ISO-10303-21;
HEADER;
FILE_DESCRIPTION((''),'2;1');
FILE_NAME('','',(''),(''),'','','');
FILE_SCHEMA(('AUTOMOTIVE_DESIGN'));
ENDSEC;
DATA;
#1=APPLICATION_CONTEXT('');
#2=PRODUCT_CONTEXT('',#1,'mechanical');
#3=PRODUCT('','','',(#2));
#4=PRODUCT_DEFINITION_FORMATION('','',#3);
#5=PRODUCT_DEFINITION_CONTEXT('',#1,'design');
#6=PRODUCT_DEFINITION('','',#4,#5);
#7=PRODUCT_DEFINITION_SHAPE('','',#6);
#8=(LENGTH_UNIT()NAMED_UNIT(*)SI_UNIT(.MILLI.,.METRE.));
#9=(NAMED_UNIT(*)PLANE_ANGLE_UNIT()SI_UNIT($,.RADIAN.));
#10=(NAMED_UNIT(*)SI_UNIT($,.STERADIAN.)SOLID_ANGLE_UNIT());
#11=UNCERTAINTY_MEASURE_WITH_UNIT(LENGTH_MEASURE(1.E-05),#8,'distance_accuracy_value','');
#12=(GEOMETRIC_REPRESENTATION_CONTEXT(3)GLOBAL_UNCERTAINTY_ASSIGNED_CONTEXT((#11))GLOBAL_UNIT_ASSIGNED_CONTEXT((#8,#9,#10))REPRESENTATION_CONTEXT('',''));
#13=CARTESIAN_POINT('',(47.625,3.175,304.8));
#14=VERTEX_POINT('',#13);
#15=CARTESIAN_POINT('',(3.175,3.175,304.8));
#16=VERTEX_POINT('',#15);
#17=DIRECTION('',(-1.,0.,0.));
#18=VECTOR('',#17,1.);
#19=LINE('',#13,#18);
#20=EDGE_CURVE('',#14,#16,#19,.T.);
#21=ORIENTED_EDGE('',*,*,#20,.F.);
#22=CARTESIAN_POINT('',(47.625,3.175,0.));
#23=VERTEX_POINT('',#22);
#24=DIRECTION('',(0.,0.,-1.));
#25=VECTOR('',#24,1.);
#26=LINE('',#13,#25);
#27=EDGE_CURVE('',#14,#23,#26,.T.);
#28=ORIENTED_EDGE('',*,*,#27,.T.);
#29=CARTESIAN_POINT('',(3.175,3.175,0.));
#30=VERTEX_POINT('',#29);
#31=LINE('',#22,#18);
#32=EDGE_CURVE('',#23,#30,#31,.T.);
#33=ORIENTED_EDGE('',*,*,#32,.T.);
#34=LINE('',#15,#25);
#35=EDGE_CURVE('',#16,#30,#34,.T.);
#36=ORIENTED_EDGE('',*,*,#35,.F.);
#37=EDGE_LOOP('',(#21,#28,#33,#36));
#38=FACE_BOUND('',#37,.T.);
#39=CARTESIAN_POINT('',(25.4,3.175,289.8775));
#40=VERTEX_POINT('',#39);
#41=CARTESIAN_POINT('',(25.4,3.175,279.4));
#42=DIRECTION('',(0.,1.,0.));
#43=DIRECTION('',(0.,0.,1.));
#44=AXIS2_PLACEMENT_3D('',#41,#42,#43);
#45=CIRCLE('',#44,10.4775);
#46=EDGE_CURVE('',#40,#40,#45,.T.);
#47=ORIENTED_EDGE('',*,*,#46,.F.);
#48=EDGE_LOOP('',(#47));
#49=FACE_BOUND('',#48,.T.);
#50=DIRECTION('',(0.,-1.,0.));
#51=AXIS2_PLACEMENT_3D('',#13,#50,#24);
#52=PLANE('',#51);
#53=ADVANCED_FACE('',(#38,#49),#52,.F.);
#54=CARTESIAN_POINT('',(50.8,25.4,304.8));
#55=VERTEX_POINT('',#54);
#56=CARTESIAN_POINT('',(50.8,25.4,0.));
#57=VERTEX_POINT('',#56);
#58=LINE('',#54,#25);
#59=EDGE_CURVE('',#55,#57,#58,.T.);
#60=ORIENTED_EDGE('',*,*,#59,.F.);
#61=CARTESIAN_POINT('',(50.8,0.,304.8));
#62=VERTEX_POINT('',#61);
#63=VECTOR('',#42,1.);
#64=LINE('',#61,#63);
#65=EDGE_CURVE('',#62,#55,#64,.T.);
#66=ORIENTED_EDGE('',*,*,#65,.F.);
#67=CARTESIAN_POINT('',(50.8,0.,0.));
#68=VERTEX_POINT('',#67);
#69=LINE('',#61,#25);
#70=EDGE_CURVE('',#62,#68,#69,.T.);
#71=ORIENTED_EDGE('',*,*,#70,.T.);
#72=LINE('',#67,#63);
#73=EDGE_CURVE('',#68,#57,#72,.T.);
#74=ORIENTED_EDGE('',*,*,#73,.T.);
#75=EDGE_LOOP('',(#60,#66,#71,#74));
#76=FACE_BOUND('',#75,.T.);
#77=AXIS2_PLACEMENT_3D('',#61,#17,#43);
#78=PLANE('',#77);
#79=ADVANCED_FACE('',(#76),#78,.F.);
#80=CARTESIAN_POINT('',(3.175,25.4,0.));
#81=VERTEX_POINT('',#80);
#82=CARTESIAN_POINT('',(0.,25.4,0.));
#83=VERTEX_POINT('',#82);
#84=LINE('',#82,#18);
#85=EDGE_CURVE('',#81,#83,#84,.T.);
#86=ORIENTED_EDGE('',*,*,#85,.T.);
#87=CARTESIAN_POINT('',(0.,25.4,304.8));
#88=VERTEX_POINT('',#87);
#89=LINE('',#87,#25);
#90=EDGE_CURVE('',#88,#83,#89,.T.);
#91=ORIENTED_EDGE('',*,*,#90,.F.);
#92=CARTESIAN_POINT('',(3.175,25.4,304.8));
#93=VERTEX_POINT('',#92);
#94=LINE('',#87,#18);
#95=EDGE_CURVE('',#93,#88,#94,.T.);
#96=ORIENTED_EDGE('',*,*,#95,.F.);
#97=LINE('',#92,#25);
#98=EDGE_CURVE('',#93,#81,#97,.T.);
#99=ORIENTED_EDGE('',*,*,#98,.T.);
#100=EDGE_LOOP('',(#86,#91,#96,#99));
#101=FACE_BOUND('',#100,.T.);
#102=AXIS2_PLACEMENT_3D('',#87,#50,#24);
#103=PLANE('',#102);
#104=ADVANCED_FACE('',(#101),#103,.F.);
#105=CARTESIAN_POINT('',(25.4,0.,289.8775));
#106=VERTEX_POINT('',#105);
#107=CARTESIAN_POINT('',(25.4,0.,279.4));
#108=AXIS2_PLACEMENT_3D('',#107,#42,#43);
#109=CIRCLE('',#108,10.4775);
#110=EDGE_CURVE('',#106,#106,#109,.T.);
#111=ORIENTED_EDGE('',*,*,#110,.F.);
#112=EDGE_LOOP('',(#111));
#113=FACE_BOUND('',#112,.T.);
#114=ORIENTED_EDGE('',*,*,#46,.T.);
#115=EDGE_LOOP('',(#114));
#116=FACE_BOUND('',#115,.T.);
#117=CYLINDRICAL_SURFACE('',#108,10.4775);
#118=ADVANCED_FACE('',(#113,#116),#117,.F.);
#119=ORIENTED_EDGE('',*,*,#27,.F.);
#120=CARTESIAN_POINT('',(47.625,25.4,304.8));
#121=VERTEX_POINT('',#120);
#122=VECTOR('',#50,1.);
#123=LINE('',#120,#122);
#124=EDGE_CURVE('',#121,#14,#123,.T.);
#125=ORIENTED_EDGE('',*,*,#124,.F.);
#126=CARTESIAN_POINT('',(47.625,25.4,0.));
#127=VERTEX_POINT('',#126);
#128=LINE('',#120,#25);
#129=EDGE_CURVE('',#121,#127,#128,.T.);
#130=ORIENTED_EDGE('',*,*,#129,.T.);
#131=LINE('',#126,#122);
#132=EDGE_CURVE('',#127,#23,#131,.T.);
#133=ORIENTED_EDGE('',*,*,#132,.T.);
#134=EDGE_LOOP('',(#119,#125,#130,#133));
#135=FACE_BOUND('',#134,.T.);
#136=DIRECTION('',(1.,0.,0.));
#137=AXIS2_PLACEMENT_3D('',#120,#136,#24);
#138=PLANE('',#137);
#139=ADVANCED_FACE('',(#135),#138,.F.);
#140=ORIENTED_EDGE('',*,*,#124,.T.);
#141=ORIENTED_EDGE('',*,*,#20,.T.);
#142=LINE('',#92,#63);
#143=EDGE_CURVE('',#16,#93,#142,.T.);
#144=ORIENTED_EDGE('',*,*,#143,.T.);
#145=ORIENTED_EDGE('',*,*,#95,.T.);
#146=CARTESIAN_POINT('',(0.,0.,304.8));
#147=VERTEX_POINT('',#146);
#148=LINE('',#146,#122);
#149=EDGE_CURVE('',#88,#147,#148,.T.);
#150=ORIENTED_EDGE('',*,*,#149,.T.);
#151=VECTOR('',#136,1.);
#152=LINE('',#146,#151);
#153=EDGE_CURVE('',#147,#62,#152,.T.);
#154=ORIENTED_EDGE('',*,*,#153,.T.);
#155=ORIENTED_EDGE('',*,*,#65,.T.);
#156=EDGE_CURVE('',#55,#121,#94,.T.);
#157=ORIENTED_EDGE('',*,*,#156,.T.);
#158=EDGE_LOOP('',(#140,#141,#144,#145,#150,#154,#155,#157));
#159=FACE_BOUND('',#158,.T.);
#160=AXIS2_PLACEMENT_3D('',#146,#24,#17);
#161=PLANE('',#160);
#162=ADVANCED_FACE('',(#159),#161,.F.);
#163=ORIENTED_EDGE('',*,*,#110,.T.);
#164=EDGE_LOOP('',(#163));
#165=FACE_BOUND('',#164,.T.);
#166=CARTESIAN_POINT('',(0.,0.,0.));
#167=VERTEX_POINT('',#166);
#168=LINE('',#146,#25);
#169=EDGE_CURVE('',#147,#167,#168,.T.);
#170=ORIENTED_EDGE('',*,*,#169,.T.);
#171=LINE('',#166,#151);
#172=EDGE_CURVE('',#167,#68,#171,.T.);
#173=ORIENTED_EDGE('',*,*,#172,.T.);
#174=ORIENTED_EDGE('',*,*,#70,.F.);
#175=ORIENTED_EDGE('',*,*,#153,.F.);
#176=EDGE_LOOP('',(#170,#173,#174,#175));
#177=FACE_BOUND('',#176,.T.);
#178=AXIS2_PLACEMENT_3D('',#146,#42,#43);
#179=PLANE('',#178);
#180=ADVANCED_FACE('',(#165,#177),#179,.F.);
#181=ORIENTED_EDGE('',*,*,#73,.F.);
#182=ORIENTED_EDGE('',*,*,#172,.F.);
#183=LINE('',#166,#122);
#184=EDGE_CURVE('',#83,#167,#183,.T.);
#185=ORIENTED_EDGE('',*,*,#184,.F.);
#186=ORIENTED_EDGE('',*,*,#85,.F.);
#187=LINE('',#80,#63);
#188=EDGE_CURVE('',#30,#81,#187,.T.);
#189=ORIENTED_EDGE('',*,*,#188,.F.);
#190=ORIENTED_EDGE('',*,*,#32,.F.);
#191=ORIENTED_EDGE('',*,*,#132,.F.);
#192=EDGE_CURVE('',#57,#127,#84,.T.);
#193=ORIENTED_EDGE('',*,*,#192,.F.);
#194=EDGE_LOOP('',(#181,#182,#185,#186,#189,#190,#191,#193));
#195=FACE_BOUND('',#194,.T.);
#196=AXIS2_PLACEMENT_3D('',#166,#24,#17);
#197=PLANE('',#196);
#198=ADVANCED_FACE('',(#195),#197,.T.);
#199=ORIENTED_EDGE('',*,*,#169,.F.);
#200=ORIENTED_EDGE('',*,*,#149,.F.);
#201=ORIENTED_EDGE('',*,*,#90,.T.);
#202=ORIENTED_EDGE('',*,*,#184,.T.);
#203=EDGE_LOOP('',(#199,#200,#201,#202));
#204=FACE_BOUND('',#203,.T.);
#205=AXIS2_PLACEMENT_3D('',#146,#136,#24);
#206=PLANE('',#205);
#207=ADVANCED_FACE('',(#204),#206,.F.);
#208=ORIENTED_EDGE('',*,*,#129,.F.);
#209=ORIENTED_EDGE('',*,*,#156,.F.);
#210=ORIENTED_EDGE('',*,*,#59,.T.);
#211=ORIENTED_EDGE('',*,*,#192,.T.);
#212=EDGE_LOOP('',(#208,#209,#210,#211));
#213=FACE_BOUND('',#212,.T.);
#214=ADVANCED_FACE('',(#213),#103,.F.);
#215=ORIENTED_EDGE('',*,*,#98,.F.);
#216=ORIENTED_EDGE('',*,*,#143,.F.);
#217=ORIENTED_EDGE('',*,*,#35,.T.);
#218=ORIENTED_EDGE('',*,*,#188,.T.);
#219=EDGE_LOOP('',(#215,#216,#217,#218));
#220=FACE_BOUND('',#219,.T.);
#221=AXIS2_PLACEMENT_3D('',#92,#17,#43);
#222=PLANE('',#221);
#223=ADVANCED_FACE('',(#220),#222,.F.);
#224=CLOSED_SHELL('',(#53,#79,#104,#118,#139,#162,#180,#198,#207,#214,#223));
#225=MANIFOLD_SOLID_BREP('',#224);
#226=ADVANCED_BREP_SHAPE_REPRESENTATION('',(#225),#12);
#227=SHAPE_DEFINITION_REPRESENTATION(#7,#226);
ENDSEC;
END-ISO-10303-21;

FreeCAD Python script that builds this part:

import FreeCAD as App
import Part
import Sketcher
from FreeCAD import Vector
Q = App.Units.Quantity


def add_polygon(sketch, points):
    """Adds a closed chain of lines whose ends are joined by coincident constraints."""
    first, n = sketch.GeometryCount, len(points)
    for a, b in zip(points, points[1:] + points[:1]):
        sketch.addGeometry(Part.LineSegment(App.Vector(*a, 0), App.Vector(*b, 0)), False)
    for i in range(n):
        sketch.addConstraint(Sketcher.Constraint("Coincident", first + i, 2, first + (i + 1) % n, 1))

doc = App.newDocument("Part")
body = doc.addObject("PartDesign::Body", "Body")

sketch1 = body.newObject("Sketcher::SketchObject", "Sketch")
sketch1.AttachmentSupport = (doc.getObject("XY_Plane"), [""])
sketch1.MapMode = "FlatFace"
add_polygon(sketch1, [(0, 25), (0, 0), (51, 0), (51, 25)])
sketch1.addConstraint([
    Sketcher.Constraint("Vertical", 0),
    Sketcher.Constraint("Horizontal", 1),
    Sketcher.Constraint("Vertical", 2),
    Sketcher.Constraint("Horizontal", 3),
    Sketcher.Constraint("Coincident", 0, 2, -1, 1),
    Sketcher.Constraint("DistanceX", 1, 1, 1, 2, Q("2 in")),
    Sketcher.Constraint("DistanceY", 0, 2, 0, 1, Q("1 in")),
])
pad1 = body.newObject("PartDesign::Pad", "Pad")
pad1.Profile = sketch1
pad1.Length = Q("12 in")

sketch2 = body.newObject("Sketcher::SketchObject", "Sketch001")
sketch2.AttachmentSupport = (doc.getObject("XY_Plane"), [""])
sketch2.MapMode = "FlatFace"
add_polygon(sketch2, [(48, 25), (48, 3), (3, 3), (3, 25)])
sketch2.addConstraint([
    Sketcher.Constraint("Vertical", 0),
    Sketcher.Constraint("Horizontal", 1),
    Sketcher.Constraint("Vertical", 2),
    Sketcher.Constraint("Horizontal", 3),
    Sketcher.Constraint("DistanceY", -1, 1, 2, 2, Q("1 in")),
    Sketcher.Constraint("DistanceX", 1, 2, 1, 1, Q("1.75 in")),
    Sketcher.Constraint("DistanceY", 0, 2, 0, 1, Q("0.875 in")),
    Sketcher.Constraint("DistanceX", -1, 1, 0, 2, Q("1.875 in")),
])
pocket1 = body.newObject("PartDesign::Pocket", "Pocket")
pocket1.Profile = sketch2
pocket1.Type = "ThroughAll"
pocket1.Reversed = True

sketch3 = body.newObject("Sketcher::SketchObject", "Sketch002")
sketch3.AttachmentSupport = (doc.getObject("XZ_Plane"), [""])
sketch3.MapMode = "FlatFace"
sketch3.AttachmentOffset = App.Placement(Vector(0, 0, -0.125 * 25.4), App.Rotation())
sketch3.addGeometry(Part.Circle(Vector(25, 279, 0), Vector(0, 0, 1), 10), False)
sketch3.addConstraint([
    Sketcher.Constraint("Diameter", 0, Q("0.825 in")),
    Sketcher.Constraint("DistanceX", -1, 1, 0, 3, Q("1 in")),
    Sketcher.Constraint("DistanceY", -1, 1, 0, 3, Q("11 in")),
])
pocket2 = body.newObject("PartDesign::Pocket", "Pocket001")
pocket2.Profile = sketch3
pocket2.Type = "ThroughAll"
pocket2.Reversed = True

doc.recompute()
